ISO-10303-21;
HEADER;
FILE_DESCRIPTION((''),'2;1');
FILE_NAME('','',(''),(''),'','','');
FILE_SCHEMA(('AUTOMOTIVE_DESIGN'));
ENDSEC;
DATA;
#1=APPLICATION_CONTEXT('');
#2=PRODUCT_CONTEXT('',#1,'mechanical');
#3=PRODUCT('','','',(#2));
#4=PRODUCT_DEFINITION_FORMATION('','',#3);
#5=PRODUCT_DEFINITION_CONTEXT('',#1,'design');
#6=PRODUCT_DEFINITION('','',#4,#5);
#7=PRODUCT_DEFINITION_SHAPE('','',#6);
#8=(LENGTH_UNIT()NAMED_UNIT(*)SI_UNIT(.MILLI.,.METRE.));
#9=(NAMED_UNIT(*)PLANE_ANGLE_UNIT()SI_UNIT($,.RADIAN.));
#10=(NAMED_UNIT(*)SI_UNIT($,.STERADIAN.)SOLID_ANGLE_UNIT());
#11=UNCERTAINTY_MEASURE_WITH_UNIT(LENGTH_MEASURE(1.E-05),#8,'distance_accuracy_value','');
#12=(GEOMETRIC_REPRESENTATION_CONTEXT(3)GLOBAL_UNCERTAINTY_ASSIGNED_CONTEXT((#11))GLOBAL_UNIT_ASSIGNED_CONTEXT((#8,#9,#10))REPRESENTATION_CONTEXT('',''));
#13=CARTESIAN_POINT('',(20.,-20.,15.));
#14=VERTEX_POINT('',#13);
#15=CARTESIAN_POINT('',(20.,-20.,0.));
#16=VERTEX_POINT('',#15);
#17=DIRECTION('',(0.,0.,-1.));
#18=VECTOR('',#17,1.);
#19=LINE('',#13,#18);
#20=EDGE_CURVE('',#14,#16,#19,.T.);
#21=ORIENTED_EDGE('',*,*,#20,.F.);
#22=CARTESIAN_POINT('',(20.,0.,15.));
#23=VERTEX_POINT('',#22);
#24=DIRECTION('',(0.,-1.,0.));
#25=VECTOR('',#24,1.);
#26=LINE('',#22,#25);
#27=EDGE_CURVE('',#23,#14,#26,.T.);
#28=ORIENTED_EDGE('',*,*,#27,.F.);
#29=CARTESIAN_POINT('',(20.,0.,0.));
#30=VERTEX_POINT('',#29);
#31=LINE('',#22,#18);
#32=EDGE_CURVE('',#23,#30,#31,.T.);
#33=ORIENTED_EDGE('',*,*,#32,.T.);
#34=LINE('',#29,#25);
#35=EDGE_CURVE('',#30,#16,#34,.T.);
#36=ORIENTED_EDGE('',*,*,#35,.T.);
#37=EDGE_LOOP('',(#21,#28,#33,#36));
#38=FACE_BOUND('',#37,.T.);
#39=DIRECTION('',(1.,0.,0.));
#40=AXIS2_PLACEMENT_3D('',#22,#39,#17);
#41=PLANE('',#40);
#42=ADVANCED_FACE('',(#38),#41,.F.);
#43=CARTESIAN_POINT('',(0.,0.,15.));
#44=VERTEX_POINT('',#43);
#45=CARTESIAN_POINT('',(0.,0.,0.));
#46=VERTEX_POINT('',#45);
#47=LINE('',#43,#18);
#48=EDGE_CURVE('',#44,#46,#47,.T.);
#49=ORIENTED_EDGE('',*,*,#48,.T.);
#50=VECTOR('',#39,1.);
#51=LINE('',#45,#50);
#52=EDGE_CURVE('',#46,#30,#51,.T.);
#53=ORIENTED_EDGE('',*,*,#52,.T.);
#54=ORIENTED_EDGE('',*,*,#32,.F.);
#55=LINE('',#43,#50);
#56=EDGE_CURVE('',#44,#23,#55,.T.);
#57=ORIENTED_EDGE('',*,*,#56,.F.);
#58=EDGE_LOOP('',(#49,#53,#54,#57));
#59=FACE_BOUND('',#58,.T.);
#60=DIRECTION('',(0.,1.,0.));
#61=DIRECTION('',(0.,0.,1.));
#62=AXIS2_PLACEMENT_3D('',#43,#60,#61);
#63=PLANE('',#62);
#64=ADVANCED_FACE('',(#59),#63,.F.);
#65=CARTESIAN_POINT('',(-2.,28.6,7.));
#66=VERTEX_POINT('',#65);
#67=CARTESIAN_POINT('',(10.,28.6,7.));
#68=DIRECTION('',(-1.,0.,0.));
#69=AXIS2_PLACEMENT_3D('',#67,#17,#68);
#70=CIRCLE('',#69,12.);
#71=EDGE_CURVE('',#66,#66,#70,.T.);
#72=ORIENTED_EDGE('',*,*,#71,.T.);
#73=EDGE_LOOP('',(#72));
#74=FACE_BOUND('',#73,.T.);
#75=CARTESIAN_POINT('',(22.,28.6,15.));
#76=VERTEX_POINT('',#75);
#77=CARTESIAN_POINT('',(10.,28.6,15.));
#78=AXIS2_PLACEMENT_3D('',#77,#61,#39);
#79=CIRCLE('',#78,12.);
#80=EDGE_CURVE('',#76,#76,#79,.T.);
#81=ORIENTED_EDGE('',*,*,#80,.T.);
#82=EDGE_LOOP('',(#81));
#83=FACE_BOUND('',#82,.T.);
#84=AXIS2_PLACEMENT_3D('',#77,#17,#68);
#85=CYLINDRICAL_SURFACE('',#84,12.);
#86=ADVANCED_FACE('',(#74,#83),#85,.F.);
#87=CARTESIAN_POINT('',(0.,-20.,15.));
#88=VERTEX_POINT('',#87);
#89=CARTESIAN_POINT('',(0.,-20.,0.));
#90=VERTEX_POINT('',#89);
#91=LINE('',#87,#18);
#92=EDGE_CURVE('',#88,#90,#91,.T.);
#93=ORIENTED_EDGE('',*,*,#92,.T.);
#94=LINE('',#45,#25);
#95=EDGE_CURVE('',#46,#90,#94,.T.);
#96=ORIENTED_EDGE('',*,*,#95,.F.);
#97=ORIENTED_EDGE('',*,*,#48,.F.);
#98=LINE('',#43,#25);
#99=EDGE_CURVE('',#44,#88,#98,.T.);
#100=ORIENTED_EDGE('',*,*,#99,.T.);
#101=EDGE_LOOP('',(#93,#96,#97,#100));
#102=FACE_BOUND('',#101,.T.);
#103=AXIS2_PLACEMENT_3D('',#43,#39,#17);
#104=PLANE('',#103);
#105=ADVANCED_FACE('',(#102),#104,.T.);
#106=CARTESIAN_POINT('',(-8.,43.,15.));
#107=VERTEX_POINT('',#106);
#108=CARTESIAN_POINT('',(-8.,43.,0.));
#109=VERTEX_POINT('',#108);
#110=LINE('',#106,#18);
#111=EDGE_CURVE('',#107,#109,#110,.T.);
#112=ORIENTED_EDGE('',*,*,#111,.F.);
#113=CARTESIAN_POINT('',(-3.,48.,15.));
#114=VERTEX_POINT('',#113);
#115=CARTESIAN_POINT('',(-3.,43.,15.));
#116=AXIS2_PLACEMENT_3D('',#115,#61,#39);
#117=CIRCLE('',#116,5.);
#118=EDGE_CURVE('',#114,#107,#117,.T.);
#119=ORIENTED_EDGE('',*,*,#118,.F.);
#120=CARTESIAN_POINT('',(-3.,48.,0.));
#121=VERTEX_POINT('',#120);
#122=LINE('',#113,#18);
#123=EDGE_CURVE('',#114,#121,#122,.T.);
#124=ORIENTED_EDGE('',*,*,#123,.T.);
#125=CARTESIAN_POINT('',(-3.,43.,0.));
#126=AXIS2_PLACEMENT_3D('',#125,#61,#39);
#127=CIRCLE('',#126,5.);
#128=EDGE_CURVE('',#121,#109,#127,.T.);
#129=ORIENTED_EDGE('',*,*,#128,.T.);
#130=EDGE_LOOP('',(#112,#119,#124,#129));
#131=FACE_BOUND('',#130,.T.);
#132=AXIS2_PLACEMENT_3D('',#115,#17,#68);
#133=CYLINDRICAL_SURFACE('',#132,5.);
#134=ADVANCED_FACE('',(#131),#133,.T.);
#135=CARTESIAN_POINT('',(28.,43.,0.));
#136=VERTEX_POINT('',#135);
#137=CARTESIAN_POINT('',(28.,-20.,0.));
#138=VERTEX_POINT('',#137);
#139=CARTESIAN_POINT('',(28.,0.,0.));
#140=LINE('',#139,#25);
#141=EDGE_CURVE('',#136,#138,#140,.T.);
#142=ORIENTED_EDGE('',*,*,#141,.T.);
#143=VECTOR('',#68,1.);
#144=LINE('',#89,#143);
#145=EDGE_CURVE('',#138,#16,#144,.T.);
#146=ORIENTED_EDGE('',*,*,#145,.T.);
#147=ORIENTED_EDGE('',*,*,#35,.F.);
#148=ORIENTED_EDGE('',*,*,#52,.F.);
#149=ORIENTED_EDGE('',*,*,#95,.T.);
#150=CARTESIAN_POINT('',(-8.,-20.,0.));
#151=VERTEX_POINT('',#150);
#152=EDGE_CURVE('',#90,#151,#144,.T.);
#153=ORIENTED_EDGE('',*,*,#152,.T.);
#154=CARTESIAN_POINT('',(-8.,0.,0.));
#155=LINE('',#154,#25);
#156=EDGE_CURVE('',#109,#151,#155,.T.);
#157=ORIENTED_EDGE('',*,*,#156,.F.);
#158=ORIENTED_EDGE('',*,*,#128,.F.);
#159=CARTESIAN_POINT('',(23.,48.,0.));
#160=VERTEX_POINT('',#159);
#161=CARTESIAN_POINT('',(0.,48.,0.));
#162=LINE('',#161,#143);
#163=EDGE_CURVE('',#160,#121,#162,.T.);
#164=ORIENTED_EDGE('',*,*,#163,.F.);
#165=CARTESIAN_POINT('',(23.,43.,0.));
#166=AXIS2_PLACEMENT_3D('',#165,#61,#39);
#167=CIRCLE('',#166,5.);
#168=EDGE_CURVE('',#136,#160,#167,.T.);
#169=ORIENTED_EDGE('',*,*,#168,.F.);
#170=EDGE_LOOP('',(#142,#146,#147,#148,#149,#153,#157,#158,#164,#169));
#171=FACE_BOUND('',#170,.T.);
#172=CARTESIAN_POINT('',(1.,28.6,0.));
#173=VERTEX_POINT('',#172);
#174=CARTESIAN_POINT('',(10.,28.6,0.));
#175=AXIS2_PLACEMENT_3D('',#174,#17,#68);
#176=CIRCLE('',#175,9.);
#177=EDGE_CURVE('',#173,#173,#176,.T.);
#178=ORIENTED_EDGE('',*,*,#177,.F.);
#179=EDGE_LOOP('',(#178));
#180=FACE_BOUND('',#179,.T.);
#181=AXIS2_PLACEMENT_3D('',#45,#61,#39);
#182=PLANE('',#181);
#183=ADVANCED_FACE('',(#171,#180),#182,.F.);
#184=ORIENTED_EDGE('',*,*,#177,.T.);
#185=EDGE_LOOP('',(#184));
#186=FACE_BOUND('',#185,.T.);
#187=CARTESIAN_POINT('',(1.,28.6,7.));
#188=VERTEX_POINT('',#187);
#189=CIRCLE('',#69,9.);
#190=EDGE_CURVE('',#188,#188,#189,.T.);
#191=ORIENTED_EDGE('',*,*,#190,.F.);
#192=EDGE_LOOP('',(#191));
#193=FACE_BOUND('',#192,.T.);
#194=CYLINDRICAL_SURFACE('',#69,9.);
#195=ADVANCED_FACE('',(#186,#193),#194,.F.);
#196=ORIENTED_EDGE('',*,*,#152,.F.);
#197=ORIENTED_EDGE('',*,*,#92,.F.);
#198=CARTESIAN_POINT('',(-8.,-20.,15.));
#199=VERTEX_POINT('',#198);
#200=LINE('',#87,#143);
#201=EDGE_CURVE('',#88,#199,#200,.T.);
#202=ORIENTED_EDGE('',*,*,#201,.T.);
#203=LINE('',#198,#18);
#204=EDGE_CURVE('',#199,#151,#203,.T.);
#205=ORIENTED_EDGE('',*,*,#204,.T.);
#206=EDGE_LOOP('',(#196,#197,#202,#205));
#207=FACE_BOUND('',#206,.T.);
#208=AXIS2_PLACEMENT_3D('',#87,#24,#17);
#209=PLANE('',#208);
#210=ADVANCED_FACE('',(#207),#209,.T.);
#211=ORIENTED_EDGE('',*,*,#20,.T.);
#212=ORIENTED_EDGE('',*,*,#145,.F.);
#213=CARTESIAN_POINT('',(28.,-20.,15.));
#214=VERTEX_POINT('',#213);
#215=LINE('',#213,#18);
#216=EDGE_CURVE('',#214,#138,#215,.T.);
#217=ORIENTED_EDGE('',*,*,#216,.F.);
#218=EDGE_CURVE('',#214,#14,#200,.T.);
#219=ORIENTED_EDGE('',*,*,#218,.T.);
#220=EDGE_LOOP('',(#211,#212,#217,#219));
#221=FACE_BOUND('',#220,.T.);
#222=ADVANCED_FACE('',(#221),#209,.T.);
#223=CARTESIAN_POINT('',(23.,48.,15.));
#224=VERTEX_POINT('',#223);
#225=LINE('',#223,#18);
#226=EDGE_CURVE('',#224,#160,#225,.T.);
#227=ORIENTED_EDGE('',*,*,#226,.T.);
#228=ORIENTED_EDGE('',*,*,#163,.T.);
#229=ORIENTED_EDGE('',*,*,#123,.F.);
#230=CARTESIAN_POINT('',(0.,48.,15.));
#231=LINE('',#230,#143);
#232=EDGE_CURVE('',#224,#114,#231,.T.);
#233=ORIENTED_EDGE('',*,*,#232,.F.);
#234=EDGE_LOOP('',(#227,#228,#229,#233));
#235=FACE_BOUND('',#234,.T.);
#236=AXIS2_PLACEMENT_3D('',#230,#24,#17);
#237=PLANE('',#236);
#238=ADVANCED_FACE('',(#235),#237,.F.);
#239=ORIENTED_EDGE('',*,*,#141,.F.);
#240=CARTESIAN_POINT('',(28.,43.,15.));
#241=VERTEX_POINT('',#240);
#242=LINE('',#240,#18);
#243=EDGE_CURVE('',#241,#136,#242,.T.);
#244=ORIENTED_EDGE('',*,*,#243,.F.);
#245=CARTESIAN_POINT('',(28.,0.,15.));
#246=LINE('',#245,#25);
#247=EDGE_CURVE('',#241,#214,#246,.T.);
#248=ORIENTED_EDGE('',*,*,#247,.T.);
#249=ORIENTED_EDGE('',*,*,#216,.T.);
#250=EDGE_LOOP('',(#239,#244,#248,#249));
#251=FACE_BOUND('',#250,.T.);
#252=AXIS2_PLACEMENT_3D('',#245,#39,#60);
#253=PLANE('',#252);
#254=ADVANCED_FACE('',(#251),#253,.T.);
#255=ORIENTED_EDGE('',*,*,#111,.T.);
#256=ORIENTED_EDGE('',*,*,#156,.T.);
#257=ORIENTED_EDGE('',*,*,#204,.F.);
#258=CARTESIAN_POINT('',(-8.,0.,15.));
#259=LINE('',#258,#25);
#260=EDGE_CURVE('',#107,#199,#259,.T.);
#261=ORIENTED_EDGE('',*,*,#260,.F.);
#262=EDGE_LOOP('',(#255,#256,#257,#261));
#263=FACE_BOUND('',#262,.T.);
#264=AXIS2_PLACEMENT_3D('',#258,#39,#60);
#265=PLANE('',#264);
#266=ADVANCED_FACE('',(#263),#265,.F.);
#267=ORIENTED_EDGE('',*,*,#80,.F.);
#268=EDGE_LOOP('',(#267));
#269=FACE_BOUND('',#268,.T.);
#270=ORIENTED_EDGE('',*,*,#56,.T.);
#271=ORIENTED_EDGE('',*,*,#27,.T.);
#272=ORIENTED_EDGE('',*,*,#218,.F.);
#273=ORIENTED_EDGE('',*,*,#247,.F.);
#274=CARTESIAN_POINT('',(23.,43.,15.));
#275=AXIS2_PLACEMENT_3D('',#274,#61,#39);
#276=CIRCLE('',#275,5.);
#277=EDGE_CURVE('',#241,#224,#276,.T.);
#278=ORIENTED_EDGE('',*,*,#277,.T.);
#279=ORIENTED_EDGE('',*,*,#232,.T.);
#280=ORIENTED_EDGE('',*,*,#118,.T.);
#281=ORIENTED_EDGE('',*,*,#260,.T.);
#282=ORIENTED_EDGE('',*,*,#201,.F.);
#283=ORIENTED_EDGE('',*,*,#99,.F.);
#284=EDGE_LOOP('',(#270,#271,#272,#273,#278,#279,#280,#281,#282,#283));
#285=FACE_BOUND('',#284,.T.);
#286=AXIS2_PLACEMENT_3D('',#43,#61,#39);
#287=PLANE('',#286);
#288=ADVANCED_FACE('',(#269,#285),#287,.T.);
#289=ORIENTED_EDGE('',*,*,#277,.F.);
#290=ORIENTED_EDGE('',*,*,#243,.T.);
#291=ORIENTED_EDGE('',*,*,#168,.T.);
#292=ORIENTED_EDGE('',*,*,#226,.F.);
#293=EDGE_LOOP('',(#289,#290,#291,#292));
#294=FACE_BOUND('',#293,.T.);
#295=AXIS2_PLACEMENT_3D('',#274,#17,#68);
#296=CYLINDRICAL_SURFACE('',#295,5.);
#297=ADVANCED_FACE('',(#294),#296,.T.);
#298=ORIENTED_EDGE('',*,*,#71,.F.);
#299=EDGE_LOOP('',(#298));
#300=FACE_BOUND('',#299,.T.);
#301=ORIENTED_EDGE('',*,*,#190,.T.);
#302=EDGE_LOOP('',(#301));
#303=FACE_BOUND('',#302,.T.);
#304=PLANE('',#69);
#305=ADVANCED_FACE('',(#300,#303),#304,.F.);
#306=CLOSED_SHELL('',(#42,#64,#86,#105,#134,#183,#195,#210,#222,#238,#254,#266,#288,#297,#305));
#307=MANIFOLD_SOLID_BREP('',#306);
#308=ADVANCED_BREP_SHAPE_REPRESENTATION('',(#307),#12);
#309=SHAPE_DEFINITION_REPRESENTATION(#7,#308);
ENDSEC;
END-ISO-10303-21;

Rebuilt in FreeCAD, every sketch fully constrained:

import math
import FreeCAD as App
import Part
import Sketcher
Q = App.Units.Quantity

doc = App.newDocument("Part")
body = doc.addObject("PartDesign::Body", "Body")

# Sketch on XY plane
sketch1 = body.newObject("Sketcher::SketchObject", "Sketch")
sketch1.AttachmentSupport = (doc.getObject("XY_Plane"), [""])
sketch1.MapMode = "FlatFace"
sketch1.addGeometry(Part.LineSegment(App.Vector(0, -20, 0), App.Vector(0, 0, 0)), False)
sketch1.addGeometry(Part.LineSegment(App.Vector(0, 0, 0), App.Vector(20, 0, 0)), False)
sketch1.addGeometry(Part.LineSegment(App.Vector(20, 0, 0), App.Vector(20, -20, 0)), False)
sketch1.addGeometry(Part.LineSegment(App.Vector(20, -20, 0), App.Vector(28, -20, 0)), False)
sketch1.addGeometry(Part.LineSegment(App.Vector(28, -20, 0), App.Vector(28, 43, 0)), False)
sketch1.addGeometry(Part.ArcOfCircle(Part.Circle(App.Vector(23, 43, 0), App.Vector(0, 0, 1), 5), math.radians(0), math.radians(90)), False)
sketch1.addGeometry(Part.LineSegment(App.Vector(23, 48, 0), App.Vector(-3, 48, 0)), False)
sketch1.addGeometry(Part.ArcOfCircle(Part.Circle(App.Vector(-3, 43, 0), App.Vector(0, 0, 1), 5), math.radians(90), math.radians(180)), False)
sketch1.addGeometry(Part.LineSegment(App.Vector(-8, 43, 0), App.Vector(-8, -20, 0)), False)
sketch1.addGeometry(Part.LineSegment(App.Vector(-8, -20, 0), App.Vector(0, -20, 0)), False)
sketch1.addGeometry(Part.Circle(App.Vector(10, 29, 0), App.Vector(0, 0, 1), 12), False)
sketch1.addConstraint(Sketcher.Constraint("Coincident", 0, 2, 1, 1))
sketch1.addConstraint(Sketcher.Constraint("Coincident", 1, 2, 2, 1))
sketch1.addConstraint(Sketcher.Constraint("Coincident", 2, 2, 3, 1))
sketch1.addConstraint(Sketcher.Constraint("Coincident", 3, 2, 4, 1))
sketch1.addConstraint(Sketcher.Constraint("Tangent", 4, 2, 5, 1))
sketch1.addConstraint(Sketcher.Constraint("Tangent", 5, 2, 6, 1))
sketch1.addConstraint(Sketcher.Constraint("Tangent", 6, 2, 7, 1))
sketch1.addConstraint(Sketcher.Constraint("Tangent", 7, 2, 8, 1))
sketch1.addConstraint(Sketcher.Constraint("Coincident", 8, 2, 9, 1))
sketch1.addConstraint(Sketcher.Constraint("Coincident", 9, 2, 0, 1))
sketch1.addConstraint(Sketcher.Constraint("Vertical", 0))
sketch1.addConstraint(Sketcher.Constraint("Horizontal", 1))
sketch1.addConstraint(Sketcher.Constraint("Vertical", 2))
sketch1.addConstraint(Sketcher.Constraint("Horizontal", 3))
sketch1.addConstraint(Sketcher.Constraint("Vertical", 4))
sketch1.addConstraint(Sketcher.Constraint("Horizontal", 6))
sketch1.addConstraint(Sketcher.Constraint("Vertical", 8))
sketch1.addConstraint(Sketcher.Constraint("Horizontal", 9))
sketch1.addConstraint(Sketcher.Constraint("Coincident", 0, 2, -1, 1))
sketch1.addConstraint(Sketcher.Constraint("Equal", 5, 7))
sketch1.addConstraint(Sketcher.Constraint("Horizontal", 3, 2, 8, 2))
sketch1.addConstraint(Sketcher.Constraint("Equal", 3, 9))
sketch1.addConstraint(Sketcher.Constraint("Equal", 1, 0))
sketch1.addConstraint(Sketcher.Constraint("Diameter", 10, Q("24 mm")))
sketch1.addConstraint(Sketcher.Constraint("Radius", 5, Q("5 mm")))
sketch1.addConstraint(Sketcher.Constraint("DistanceX", 1, 1, 1, 2, Q("20 mm")))
sketch1.addConstraint(Sketcher.Constraint("DistanceX", 3, 1, 3, 2, Q("8 mm")))
sketch1.addConstraint(Sketcher.Constraint("DistanceY", 4, 1, 4, 2, Q("63 mm")))
sketch1.addConstraint(Sketcher.Constraint("DistanceX", -1, 1, 10, 3, Q("10 mm")))
sketch1.addConstraint(Sketcher.Constraint("DistanceY", -1, 1, 10, 3, Q("28.6 mm")))
pad1 = body.newObject("PartDesign::Pad", "Pad")
pad1.Profile = sketch1
pad1.Length = 15

# Sketch on XY plane
sketch2 = body.newObject("Sketcher::SketchObject", "Sketch001")
sketch2.AttachmentSupport = (doc.getObject("XY_Plane"), [""])
sketch2.MapMode = "FlatFace"
sketch2.addGeometry(Part.Circle(App.Vector(10, 29, 0), App.Vector(0, 0, 1), 12), False)
sketch2.addGeometry(Part.Circle(App.Vector(10, 29, 0), App.Vector(0, 0, 1), 9), False)
sketch2.addConstraint(Sketcher.Constraint("Coincident", 1, 3, 0, 3))
sketch2.addConstraint(Sketcher.Constraint("Diameter", 0, Q("24 mm")))
sketch2.addConstraint(Sketcher.Constraint("Diameter", 1, Q("18 mm")))
sketch2.addConstraint(Sketcher.Constraint("DistanceX", -1, 1, 0, 3, Q("10 mm")))
sketch2.addConstraint(Sketcher.Constraint("DistanceY", -1, 1, 0, 3, Q("28.6 mm")))
pad2 = body.newObject("PartDesign::Pad", "Pad001")
pad2.Profile = sketch2
pad2.Length = 7

doc.recompute()
